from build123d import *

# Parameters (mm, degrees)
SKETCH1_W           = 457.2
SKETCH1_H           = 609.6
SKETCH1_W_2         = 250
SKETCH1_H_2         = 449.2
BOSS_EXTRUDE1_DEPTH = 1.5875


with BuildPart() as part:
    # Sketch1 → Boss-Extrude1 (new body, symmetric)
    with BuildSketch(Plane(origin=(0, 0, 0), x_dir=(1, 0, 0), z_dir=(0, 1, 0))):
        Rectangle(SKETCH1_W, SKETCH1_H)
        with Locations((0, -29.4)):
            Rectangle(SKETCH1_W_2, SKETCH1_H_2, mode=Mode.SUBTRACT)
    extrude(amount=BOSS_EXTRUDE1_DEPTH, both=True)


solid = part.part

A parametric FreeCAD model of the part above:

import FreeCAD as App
import Part
import Sketcher
from FreeCAD import Vector
Q = App.Units.Quantity

doc = App.newDocument("Part")
body = doc.addObject("PartDesign::Body", "Body")

# Sketch on XZ plane
sketch1 = body.newObject("Sketcher::SketchObject", "Sketch")
sketch1.AttachmentSupport = (doc.getObject("XZ_Plane"), [""])
sketch1.MapMode = "FlatFace"
sketch1.addGeometry(Part.LineSegment(Vector(-229, -305, 0), Vector(-229, 305, 0)), False)
sketch1.addGeometry(Part.LineSegment(Vector(-229, 305, 0), Vector(229, 305, 0)), False)
sketch1.addGeometry(Part.LineSegment(Vector(229, 305, 0), Vector(229, -305, 0)), False)
sketch1.addGeometry(Part.LineSegment(Vector(229, -305, 0), Vector(-229, -305, 0)), False)
sketch1.addGeometry(Part.LineSegment(Vector(125, 254, 0), Vector(-125, 254, 0)), False)
sketch1.addGeometry(Part.LineSegment(Vector(-125, 254, 0), Vector(-125, -195, 0)), False)
sketch1.addGeometry(Part.LineSegment(Vector(-125, -195, 0), Vector(125, -195, 0)), False)
sketch1.addGeometry(Part.LineSegment(Vector(125, -195, 0), Vector(125, 254, 0)), False)
sketch1.addConstraint(Sketcher.Constraint("Coincident", 0, 2, 1, 1))
sketch1.addConstraint(Sketcher.Constraint("Coincident", 1, 2, 2, 1))
sketch1.addConstraint(Sketcher.Constraint("Coincident", 2, 2, 3, 1))
sketch1.addConstraint(Sketcher.Constraint("Coincident", 3, 2, 0, 1))
sketch1.addConstraint(Sketcher.Constraint("Coincident", 4, 2, 5, 1))
sketch1.addConstraint(Sketcher.Constraint("Coincident", 5, 2, 6, 1))
sketch1.addConstraint(Sketcher.Constraint("Coincident", 6, 2, 7, 1))
sketch1.addConstraint(Sketcher.Constraint("Coincident", 7, 2, 4, 1))
sketch1.addConstraint(Sketcher.Constraint("Vertical", 0))
sketch1.addConstraint(Sketcher.Constraint("Horizontal", 1))
sketch1.addConstraint(Sketcher.Constraint("Vertical", 2))
sketch1.addConstraint(Sketcher.Constraint("Horizontal", 3))
sketch1.addConstraint(Sketcher.Constraint("Horizontal", 4))
sketch1.addConstraint(Sketcher.Constraint("Vertical", 5))
sketch1.addConstraint(Sketcher.Constraint("Horizontal", 6))
sketch1.addConstraint(Sketcher.Constraint("Vertical", 7))
sketch1.addConstraint(Sketcher.Constraint("Symmetric", 0, 2, 2, 2, -1, 1))
sketch1.addConstraint(Sketcher.Constraint("DistanceX", 1, 1, 1, 2, Q("18 in")))
sketch1.addConstraint(Sketcher.Constraint("DistanceY", 0, 1, 0, 2, Q("24 in")))
sketch1.addConstraint(Sketcher.Constraint("DistanceY", -1, 1, 4, 2, Q("10 in")))
sketch1.addConstraint(Sketcher.Constraint("DistanceX", 4, 2, 4, 1, 250.0))
sketch1.addConstraint(Sketcher.Constraint("DistanceY", 5, 2, 5, 1, 449.2))
sketch1.addConstraint(Sketcher.Constraint("DistanceX", 4, 2, -1, 1, 125.0))
pad1 = body.newObject("PartDesign::Pad", "Pad")
pad1.Profile = sketch1
pad1.Length = Q("0.125 in")
pad1.Midplane = True

doc.recompute()
